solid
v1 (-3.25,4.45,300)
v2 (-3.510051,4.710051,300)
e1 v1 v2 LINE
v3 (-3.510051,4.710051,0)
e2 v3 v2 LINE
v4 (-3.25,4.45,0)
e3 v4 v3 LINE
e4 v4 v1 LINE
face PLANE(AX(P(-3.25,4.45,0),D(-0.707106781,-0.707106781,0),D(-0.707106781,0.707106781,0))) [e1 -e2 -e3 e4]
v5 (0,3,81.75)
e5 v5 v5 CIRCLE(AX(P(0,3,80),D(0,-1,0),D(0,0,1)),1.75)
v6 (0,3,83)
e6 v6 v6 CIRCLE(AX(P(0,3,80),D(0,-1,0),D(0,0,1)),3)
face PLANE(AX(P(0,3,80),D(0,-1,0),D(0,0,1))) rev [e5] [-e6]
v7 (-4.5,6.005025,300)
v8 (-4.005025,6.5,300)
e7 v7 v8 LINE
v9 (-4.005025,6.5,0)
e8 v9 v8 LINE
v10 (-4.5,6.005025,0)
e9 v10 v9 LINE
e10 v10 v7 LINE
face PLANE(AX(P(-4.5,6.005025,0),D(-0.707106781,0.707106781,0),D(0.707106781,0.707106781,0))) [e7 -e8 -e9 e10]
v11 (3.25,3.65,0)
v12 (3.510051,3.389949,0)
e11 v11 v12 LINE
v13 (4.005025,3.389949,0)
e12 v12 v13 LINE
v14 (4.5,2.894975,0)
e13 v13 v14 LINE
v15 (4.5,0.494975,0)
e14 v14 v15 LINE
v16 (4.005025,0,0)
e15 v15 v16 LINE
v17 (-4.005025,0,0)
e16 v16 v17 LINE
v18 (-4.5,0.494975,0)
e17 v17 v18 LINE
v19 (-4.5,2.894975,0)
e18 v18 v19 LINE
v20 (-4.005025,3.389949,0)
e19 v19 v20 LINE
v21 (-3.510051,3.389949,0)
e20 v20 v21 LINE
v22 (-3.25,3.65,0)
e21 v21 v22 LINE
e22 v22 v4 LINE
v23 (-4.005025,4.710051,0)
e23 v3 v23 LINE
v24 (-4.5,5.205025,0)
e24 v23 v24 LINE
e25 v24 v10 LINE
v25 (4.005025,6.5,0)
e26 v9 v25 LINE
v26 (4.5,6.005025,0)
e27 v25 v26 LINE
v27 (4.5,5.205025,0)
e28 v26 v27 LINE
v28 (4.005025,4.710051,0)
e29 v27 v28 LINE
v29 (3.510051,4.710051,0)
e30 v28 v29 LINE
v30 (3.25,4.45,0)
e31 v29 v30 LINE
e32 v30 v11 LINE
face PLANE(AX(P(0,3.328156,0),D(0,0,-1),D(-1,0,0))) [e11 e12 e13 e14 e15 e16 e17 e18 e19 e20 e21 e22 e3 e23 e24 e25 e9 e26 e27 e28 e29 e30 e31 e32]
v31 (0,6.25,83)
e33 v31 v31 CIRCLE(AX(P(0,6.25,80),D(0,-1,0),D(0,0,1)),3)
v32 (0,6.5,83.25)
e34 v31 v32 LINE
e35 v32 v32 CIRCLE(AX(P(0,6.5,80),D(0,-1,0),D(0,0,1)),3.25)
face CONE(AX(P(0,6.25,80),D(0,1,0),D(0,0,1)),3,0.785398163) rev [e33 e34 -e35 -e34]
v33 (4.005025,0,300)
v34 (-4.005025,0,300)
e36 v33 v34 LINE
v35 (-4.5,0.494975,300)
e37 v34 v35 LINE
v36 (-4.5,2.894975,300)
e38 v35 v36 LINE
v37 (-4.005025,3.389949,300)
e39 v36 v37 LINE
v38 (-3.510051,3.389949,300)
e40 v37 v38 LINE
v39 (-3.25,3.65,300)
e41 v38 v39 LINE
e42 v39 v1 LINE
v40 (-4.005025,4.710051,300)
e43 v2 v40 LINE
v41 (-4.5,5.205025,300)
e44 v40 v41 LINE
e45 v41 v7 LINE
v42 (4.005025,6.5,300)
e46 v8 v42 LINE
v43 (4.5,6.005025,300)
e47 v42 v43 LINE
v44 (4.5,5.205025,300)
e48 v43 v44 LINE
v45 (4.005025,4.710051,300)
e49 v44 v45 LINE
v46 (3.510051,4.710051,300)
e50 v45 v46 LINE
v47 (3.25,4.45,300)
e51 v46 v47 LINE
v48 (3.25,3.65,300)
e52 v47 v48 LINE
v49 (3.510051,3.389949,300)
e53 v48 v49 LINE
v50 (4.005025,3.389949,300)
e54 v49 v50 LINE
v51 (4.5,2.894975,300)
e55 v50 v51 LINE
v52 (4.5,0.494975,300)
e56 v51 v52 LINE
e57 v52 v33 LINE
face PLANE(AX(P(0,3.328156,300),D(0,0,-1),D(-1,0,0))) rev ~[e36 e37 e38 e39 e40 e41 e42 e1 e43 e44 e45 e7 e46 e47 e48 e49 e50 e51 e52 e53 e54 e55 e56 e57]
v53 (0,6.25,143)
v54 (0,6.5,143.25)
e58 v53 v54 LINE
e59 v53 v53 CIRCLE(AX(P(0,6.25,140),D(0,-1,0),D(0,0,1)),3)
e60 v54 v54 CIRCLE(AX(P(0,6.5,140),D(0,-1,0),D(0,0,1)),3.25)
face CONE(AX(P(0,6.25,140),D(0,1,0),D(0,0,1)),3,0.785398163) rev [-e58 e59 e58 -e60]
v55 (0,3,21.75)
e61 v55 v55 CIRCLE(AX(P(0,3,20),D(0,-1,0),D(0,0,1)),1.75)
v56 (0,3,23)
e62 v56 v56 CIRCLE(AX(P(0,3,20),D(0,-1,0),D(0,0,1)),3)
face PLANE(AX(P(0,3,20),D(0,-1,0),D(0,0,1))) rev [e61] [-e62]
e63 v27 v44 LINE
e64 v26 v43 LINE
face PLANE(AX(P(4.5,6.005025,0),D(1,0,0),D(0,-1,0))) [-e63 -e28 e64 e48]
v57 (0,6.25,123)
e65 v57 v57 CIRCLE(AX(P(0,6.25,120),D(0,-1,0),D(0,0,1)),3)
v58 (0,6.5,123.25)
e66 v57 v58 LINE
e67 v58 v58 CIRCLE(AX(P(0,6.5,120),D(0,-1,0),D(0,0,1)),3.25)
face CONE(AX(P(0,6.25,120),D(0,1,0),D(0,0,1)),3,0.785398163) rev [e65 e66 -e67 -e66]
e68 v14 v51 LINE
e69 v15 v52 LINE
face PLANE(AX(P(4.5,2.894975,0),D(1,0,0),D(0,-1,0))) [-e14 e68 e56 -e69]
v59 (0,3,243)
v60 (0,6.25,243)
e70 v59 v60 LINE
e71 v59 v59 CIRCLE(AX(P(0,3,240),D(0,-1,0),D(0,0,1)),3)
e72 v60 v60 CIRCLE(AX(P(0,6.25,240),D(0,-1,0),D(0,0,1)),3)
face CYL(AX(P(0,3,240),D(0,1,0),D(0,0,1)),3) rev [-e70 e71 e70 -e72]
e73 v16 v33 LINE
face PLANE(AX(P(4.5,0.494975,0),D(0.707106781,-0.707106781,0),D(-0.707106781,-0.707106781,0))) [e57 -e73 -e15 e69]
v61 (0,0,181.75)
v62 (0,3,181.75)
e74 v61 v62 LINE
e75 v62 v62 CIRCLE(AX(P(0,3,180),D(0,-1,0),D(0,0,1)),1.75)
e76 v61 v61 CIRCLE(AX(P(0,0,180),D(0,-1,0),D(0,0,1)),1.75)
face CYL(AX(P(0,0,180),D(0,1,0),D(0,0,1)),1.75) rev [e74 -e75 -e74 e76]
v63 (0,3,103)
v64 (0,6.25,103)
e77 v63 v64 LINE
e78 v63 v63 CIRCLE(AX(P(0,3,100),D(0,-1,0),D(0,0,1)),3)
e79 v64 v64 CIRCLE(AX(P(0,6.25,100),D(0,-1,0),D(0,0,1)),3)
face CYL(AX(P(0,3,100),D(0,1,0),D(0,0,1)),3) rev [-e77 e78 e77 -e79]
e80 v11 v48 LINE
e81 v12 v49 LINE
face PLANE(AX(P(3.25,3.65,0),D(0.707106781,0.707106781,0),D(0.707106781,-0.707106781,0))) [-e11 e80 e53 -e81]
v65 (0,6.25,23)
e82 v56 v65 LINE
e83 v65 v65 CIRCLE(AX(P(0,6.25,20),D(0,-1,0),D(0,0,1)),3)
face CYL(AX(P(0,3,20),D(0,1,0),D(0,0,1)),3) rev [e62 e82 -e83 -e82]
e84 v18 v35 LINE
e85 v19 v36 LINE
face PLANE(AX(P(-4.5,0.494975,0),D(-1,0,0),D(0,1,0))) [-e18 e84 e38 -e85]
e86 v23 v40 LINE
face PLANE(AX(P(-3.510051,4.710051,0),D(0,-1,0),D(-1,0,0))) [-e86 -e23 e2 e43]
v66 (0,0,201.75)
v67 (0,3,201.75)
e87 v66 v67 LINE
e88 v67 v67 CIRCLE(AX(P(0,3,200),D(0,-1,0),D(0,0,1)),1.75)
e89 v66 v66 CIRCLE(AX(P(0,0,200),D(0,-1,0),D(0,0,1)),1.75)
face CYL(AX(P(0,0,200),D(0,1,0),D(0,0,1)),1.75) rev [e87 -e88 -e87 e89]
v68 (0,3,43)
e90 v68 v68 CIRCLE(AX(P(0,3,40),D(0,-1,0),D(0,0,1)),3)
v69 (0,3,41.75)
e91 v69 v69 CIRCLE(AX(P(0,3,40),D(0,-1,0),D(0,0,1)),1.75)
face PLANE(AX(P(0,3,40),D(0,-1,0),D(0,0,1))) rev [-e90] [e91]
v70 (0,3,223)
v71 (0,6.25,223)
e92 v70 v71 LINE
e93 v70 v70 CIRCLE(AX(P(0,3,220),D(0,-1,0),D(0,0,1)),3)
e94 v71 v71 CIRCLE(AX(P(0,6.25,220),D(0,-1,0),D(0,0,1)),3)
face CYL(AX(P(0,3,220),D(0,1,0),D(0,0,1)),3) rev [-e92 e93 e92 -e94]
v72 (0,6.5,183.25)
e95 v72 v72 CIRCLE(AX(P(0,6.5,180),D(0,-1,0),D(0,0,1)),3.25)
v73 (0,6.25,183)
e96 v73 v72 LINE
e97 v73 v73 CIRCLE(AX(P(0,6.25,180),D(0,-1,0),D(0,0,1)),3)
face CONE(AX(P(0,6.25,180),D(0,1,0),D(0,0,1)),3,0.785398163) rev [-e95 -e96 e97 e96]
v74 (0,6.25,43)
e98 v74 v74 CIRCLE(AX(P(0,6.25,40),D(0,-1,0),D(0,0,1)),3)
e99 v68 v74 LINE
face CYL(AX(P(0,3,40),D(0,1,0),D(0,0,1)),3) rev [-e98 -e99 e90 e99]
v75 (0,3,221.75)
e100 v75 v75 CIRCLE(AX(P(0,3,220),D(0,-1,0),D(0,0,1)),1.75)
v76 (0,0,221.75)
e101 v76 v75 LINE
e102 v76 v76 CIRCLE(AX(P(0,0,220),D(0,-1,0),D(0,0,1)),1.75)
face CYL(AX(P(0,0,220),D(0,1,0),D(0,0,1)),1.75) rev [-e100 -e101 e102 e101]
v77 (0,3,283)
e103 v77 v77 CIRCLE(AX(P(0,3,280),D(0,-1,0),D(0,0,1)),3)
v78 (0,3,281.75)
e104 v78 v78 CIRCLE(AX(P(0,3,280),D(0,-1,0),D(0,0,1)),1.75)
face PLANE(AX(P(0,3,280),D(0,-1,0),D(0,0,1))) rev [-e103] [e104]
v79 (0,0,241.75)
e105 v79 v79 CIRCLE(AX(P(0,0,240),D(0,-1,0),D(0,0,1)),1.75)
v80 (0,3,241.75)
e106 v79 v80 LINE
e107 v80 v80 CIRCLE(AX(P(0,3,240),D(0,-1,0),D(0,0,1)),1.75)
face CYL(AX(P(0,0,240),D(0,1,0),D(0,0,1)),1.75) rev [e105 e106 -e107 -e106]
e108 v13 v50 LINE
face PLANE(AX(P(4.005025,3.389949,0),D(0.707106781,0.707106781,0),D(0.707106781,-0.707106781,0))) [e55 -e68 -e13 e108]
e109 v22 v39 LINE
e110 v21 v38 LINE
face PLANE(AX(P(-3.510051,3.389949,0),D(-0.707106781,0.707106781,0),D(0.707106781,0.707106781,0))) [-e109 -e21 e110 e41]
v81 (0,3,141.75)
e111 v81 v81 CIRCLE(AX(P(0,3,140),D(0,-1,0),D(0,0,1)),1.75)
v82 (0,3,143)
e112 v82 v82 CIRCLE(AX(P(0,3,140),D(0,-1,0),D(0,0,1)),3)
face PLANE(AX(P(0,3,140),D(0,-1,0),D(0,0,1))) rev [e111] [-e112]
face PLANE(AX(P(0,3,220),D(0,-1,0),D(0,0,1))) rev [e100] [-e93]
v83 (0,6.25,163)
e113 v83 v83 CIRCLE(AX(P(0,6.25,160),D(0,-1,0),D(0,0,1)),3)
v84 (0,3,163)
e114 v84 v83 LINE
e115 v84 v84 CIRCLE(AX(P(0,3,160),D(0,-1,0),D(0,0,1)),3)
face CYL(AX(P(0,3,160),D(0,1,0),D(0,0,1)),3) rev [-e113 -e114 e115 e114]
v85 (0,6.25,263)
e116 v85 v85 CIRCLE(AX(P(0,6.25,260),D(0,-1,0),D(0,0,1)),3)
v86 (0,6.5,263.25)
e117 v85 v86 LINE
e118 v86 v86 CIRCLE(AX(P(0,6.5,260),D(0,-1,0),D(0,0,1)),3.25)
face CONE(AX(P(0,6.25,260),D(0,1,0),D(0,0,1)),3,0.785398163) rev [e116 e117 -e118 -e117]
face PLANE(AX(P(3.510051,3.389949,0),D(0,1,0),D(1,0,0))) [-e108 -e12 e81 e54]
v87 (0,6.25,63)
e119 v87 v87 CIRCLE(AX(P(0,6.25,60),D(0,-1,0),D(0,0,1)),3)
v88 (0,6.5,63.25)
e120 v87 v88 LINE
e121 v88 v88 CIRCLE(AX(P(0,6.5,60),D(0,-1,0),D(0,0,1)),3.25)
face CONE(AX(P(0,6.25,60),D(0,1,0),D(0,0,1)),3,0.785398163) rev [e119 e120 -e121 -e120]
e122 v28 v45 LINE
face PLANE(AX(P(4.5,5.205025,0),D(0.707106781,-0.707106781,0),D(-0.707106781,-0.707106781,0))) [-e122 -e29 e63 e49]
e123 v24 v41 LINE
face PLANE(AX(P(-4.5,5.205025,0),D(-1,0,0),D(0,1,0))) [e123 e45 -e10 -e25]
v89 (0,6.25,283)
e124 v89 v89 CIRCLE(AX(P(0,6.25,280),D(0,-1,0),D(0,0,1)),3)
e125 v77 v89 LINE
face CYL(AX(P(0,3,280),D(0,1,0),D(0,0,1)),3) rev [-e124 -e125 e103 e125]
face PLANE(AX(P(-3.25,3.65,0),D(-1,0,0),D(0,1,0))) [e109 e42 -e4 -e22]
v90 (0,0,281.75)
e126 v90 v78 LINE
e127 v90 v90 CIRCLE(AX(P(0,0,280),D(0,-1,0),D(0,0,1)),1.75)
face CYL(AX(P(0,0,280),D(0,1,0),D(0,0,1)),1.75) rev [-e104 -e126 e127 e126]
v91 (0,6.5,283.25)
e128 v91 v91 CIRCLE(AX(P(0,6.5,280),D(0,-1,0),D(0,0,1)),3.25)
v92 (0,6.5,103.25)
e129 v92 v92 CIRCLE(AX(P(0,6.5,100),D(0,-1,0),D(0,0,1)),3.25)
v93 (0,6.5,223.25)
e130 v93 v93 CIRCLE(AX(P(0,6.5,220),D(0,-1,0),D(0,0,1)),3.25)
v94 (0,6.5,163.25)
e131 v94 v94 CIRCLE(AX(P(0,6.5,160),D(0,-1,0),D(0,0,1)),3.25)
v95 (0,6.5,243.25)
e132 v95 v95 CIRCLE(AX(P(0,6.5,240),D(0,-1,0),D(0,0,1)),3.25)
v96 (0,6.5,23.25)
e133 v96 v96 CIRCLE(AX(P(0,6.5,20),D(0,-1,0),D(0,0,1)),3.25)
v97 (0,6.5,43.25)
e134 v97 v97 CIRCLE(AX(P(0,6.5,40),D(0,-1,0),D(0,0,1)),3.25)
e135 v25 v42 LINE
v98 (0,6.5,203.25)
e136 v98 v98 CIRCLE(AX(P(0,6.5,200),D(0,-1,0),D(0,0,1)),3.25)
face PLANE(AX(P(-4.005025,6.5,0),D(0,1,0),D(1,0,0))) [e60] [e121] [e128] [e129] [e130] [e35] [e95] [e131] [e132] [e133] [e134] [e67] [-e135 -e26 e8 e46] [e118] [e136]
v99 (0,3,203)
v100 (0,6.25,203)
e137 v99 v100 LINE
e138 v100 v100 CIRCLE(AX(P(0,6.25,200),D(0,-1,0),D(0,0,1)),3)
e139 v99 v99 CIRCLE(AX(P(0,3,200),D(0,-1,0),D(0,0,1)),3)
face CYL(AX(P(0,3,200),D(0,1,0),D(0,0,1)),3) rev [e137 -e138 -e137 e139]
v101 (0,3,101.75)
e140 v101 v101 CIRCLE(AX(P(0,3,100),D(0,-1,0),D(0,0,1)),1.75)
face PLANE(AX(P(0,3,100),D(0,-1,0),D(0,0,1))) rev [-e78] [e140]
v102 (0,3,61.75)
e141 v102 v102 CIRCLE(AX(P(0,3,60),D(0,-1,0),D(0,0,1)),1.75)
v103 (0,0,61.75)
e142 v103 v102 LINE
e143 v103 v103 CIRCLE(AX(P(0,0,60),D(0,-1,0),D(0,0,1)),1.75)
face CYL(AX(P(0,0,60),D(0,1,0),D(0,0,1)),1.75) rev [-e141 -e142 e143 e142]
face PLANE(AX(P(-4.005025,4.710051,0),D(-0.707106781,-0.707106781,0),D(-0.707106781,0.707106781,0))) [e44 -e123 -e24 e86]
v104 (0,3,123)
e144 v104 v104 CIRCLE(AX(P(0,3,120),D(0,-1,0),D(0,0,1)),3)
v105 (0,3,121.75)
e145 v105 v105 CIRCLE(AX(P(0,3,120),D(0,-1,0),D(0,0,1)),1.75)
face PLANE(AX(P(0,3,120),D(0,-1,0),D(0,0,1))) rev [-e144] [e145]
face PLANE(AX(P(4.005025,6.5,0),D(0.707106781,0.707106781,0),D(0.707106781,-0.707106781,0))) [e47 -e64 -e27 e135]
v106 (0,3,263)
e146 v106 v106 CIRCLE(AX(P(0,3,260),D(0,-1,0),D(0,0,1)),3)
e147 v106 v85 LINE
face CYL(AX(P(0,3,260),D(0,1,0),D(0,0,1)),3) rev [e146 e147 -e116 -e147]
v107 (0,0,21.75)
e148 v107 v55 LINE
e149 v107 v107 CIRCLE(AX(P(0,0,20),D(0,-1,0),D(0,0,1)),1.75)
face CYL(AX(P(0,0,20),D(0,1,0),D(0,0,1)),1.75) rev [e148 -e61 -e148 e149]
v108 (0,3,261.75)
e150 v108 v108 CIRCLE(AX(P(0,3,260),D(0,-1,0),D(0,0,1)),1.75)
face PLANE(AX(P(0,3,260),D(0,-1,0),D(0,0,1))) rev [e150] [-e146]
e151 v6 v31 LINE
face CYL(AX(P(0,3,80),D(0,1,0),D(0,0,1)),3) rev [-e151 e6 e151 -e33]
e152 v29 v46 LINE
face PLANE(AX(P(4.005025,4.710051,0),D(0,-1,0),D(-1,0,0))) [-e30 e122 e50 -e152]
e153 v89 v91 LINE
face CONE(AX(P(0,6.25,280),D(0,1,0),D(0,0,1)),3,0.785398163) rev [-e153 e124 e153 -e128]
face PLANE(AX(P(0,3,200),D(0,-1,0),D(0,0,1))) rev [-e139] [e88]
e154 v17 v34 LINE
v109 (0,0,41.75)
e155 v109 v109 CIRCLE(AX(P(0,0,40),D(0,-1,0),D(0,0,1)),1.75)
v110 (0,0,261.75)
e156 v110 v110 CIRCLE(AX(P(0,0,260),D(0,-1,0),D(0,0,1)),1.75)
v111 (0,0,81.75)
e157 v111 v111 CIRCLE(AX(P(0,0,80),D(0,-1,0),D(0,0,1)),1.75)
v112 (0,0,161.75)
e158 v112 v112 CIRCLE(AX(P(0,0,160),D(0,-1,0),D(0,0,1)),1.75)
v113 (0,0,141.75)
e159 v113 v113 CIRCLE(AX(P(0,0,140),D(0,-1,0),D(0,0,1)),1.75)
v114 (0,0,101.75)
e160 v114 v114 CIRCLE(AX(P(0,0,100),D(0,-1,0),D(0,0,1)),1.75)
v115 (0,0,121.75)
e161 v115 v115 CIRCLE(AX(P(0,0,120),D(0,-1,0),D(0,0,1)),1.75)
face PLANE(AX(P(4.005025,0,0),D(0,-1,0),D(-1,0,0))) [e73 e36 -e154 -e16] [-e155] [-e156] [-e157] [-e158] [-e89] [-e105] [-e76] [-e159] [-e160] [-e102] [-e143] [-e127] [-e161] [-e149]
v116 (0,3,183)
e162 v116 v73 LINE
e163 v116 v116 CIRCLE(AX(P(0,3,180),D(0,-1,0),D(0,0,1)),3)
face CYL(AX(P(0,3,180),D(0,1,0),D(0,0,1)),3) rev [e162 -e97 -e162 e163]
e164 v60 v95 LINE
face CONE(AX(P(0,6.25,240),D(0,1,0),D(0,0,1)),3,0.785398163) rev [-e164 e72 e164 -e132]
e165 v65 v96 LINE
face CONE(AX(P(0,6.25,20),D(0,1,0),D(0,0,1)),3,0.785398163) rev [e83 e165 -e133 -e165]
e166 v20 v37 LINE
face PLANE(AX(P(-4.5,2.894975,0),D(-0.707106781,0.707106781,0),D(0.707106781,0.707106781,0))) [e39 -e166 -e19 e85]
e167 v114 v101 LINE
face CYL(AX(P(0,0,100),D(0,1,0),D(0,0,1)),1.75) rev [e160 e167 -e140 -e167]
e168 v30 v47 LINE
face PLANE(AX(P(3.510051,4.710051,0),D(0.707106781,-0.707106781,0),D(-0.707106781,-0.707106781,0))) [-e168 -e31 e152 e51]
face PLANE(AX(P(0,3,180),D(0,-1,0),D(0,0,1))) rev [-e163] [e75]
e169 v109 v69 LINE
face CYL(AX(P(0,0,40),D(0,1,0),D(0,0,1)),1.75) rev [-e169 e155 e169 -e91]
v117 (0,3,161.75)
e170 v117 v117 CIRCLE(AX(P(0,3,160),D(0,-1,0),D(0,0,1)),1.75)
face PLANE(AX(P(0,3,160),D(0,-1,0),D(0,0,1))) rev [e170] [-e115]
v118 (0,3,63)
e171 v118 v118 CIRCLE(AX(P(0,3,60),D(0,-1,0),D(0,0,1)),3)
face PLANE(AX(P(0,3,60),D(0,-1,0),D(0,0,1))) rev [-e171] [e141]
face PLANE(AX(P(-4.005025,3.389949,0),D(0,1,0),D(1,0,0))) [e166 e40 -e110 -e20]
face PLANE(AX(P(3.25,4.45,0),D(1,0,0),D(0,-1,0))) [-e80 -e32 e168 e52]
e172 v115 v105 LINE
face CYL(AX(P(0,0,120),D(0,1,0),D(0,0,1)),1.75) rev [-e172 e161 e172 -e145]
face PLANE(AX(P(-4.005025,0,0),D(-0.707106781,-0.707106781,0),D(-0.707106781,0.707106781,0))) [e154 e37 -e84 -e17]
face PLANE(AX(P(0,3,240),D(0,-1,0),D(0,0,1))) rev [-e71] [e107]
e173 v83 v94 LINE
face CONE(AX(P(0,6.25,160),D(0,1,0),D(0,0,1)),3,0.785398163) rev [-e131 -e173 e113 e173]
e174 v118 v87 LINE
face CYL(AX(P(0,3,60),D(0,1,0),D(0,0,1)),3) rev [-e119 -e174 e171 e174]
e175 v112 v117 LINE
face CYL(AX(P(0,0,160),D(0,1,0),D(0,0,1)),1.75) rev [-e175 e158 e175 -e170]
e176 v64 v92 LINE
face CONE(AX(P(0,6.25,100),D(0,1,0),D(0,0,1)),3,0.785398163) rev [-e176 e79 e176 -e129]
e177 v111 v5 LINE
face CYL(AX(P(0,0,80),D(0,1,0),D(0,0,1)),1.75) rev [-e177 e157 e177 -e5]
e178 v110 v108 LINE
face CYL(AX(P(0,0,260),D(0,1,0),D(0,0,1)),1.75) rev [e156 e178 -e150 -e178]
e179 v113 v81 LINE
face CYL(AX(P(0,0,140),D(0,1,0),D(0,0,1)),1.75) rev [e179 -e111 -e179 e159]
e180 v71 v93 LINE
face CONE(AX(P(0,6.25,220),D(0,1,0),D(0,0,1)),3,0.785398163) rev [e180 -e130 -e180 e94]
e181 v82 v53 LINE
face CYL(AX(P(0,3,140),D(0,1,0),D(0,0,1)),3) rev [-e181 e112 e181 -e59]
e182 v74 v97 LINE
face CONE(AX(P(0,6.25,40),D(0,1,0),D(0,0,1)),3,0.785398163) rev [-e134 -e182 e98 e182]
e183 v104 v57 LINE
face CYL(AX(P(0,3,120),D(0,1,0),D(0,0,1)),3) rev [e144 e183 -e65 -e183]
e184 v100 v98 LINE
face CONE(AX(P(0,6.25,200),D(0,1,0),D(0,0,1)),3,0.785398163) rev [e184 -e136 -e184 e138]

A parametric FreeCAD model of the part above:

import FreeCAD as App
import Part
import Sketcher
from FreeCAD import Vector
Q = App.Units.Quantity

doc = App.newDocument("Part")
body = doc.addObject("PartDesign::Body", "Body")

sketch1 = body.newObject("Sketcher::SketchObject", "Sketch")
sketch1.AttachmentSupport = (doc.getObject("XY_Plane"), [""])
sketch1.MapMode = "FlatFace"
sketch1.addGeometry([
    Part.LineSegment(Vector(4.01, 6.5, 0), Vector(-4.01, 6.5, 0)),
    Part.LineSegment(Vector(-4.01, 6.5, 0), Vector(-4.5, 6.01, 0)),
    Part.LineSegment(Vector(-4.5, 6.01, 0), Vector(-4.5, 5.21, 0)),
    Part.LineSegment(Vector(-4.5, 5.21, 0), Vector(-4.01, 4.71, 0)),
    Part.LineSegment(Vector(-4.01, 4.71, 0), Vector(-3.51, 4.71, 0)),
    Part.LineSegment(Vector(-3.51, 4.71, 0), Vector(-3.25, 4.45, 0)),
    Part.LineSegment(Vector(-3.25, 4.45, 0), Vector(-3.25, 3.65, 0)),
    Part.LineSegment(Vector(-3.25, 3.65, 0), Vector(-3.51, 3.39, 0)),
    Part.LineSegment(Vector(-3.51, 3.39, 0), Vector(-4.01, 3.39, 0)),
    Part.LineSegment(Vector(-4.01, 3.39, 0), Vector(-4.5, 2.89, 0)),
    Part.LineSegment(Vector(-4.5, 2.89, 0), Vector(-4.5, 0.49, 0)),
    Part.LineSegment(Vector(-4.5, 0.49, 0), Vector(-4.01, 0, 0)),
    Part.LineSegment(Vector(-4.01, 0, 0), Vector(4.01, 0, 0)),
    Part.LineSegment(Vector(4.01, 0, 0), Vector(4.5, 0.49, 0)),
    Part.LineSegment(Vector(4.5, 0.49, 0), Vector(4.5, 2.89, 0)),
    Part.LineSegment(Vector(4.5, 2.89, 0), Vector(4.01, 3.39, 0)),
    Part.LineSegment(Vector(4.01, 3.39, 0), Vector(3.51, 3.39, 0)),
    Part.LineSegment(Vector(3.51, 3.39, 0), Vector(3.25, 3.65, 0)),
    Part.LineSegment(Vector(3.25, 3.65, 0), Vector(3.25, 4.45, 0)),
    Part.LineSegment(Vector(3.25, 4.45, 0), Vector(3.51, 4.71, 0)),
    Part.LineSegment(Vector(3.51, 4.71, 0), Vector(4.01, 4.71, 0)),
    Part.LineSegment(Vector(4.01, 4.71, 0), Vector(4.5, 5.21, 0)),
    Part.LineSegment(Vector(4.5, 5.21, 0), Vector(4.5, 6.01, 0)),
    Part.LineSegment(Vector(4.5, 6.01, 0), Vector(4.01, 6.5, 0)),
], False)
sketch1.addConstraint([
    Sketcher.Constraint("Coincident", 0, 2, 1, 1),
    Sketcher.Constraint("Coincident", 1, 2, 2, 1),
    Sketcher.Constraint("Coincident", 2, 2, 3, 1),
    Sketcher.Constraint("Coincident", 3, 2, 4, 1),
    Sketcher.Constraint("Coincident", 4, 2, 5, 1),
    Sketcher.Constraint("Coincident", 5, 2, 6, 1),
    Sketcher.Constraint("Coincident", 6, 2, 7, 1),
    Sketcher.Constraint("Coincident", 7, 2, 8, 1),
    Sketcher.Constraint("Coincident", 8, 2, 9, 1),
    Sketcher.Constraint("Coincident", 9, 2, 10, 1),
    Sketcher.Constraint("Coincident", 10, 2, 11, 1),
    Sketcher.Constraint("Coincident", 11, 2, 12, 1),
    Sketcher.Constraint("Coincident", 12, 2, 13, 1),
    Sketcher.Constraint("Coincident", 13, 2, 14, 1),
    Sketcher.Constraint("Coincident", 14, 2, 15, 1),
    Sketcher.Constraint("Coincident", 15, 2, 16, 1),
    Sketcher.Constraint("Coincident", 16, 2, 17, 1),
    Sketcher.Constraint("Coincident", 17, 2, 18, 1),
    Sketcher.Constraint("Coincident", 18, 2, 19, 1),
    Sketcher.Constraint("Coincident", 19, 2, 20, 1),
    Sketcher.Constraint("Coincident", 20, 2, 21, 1),
    Sketcher.Constraint("Coincident", 21, 2, 22, 1),
    Sketcher.Constraint("Coincident", 22, 2, 23, 1),
    Sketcher.Constraint("Coincident", 23, 2, 0, 1),
    Sketcher.Constraint("Horizontal", 0),
    Sketcher.Constraint("Vertical", 2),
    Sketcher.Constraint("Horizontal", 4),
    Sketcher.Constraint("Vertical", 6),
    Sketcher.Constraint("Horizontal", 8),
    Sketcher.Constraint("Vertical", 10),
    Sketcher.Constraint("Horizontal", 12),
    Sketcher.Constraint("Vertical", 14),
    Sketcher.Constraint("Horizontal", 16),
    Sketcher.Constraint("Vertical", 18),
    Sketcher.Constraint("Horizontal", 20),
    Sketcher.Constraint("Vertical", 22),
    Sketcher.Constraint("Symmetric", 11, 2, 12, 2, -1, 1),
    Sketcher.Constraint("Symmetric", 10, 2, 13, 2, -2),
    Sketcher.Constraint("Symmetric", 8, 2, 15, 2, -2),
    Sketcher.Constraint("Symmetric", 6, 2, 17, 2, -2),
    Sketcher.Constraint("Symmetric", 4, 2, 19, 2, -2),
    Sketcher.Constraint("Symmetric", 2, 2, 21, 2, -2),
    Sketcher.Constraint("Perpendicular", 1, 3),
    Sketcher.Constraint("Parallel", 3, 5),
    Sketcher.Constraint("Perpendicular", 5, 7),
    Sketcher.Constraint("Parallel", 7, 9),
    Sketcher.Constraint("Perpendicular", 9, 11),
    Sketcher.Constraint("Perpendicular", 11, 13),
    Sketcher.Constraint("Perpendicular", 13, 15),
    Sketcher.Constraint("Parallel", 15, 17),
    Sketcher.Constraint("Perpendicular", 17, 19),
    Sketcher.Constraint("Parallel", 19, 21),
    Sketcher.Constraint("Perpendicular", 21, 23),
    Sketcher.Constraint("Horizontal", 1, 2, 22, 2),
    Sketcher.Constraint("Vertical", 0, 2, 3, 2),
    Sketcher.Constraint("Vertical", 4, 2, 7, 2),
    Sketcher.Constraint("Vertical", 3, 2, 8, 2),
    Sketcher.Constraint("Vertical", 2, 2, 9, 2),
    Sketcher.Constraint("Vertical", 8, 2, 11, 2),
    Sketcher.Constraint("Equal", 2, 6),
    Sketcher.Constraint("DistanceY", 2, 2, 2, 1, Q("0.8 mm")),
    Sketcher.Constraint("DistanceY", 10, 2, 10, 1, Q("2.4 mm")),
    Sketcher.Constraint("Distance", 1, Q("0.7 mm")),
    Sketcher.Constraint("DistanceY", -1, 1, 0, 2, Q("6.5 mm")),
    Sketcher.Constraint("DistanceX", 1, 2, -1, 1, Q("4.5 mm")),
    Sketcher.Constraint("DistanceX", 5, 2, -1, 1, Q("3.25 mm")),
])
pad1 = body.newObject("PartDesign::Pad", "Pad")
pad1.Profile = sketch1
pad1.Length = 300

sketch2 = body.newObject("Sketcher::SketchObject", "Sketch001")
sketch2.AttachmentSupport = (doc.getObject("YZ_Plane"), [""])
sketch2.MapMode = "FlatFace"
sketch2.addGeometry([
    Part.LineSegment(Vector(0, 20, 0), Vector(6.5, 20, 0)),
    Part.LineSegment(Vector(6.5, 20, 0), Vector(6.5, 23.25, 0)),
    Part.LineSegment(Vector(6.5, 23.25, 0), Vector(6.25, 23, 0)),
    Part.LineSegment(Vector(6.25, 23, 0), Vector(3, 23, 0)),
    Part.LineSegment(Vector(3, 23, 0), Vector(3, 21.75, 0)),
    Part.LineSegment(Vector(3, 21.75, 0), Vector(0, 21.75, 0)),
    Part.LineSegment(Vector(0, 21.75, 0), Vector(0, 20, 0)),
], False)
sketch2.addGeometry(Part.LineSegment(Vector(6.5, 20, 0), Vector(0, 20, 0)), True)
sketch2.addConstraint([
    Sketcher.Constraint("Coincident", 0, 2, 1, 1),
    Sketcher.Constraint("Coincident", 1, 2, 2, 1),
    Sketcher.Constraint("Coincident", 2, 2, 3, 1),
    Sketcher.Constraint("Coincident", 3, 2, 4, 1),
    Sketcher.Constraint("Coincident", 4, 2, 5, 1),
    Sketcher.Constraint("Coincident", 5, 2, 6, 1),
    Sketcher.Constraint("Coincident", 6, 2, 0, 1),
    Sketcher.Constraint("Horizontal", 0),
    Sketcher.Constraint("Vertical", 1),
    Sketcher.Constraint("Horizontal", 3),
    Sketcher.Constraint("Vertical", 4),
    Sketcher.Constraint("Horizontal", 5),
    Sketcher.Constraint("Vertical", 6),
    Sketcher.Constraint("Horizontal", 7),
    Sketcher.Constraint("Coincident", 7, 1, 0, 2),
    Sketcher.Constraint("PointOnObject", 5, 2, -2),
    Sketcher.Constraint("PointOnObject", 7, 2, -2),
    Sketcher.Constraint("Equal", 3, 1),
    Sketcher.Constraint("DistanceX", 5, 2, 5, 1, Q("3 mm")),
    Sketcher.Constraint("Angle", 2, Q("-135 deg")),
    Sketcher.Constraint("DistanceX", 0, 1, 0, 2, Q("6.5 mm")),
    Sketcher.Constraint("DistanceY", -1, 1, 0, 2, Q("20 mm")),
    Sketcher.Constraint("DistanceY", -1, 1, 2, 2, Q("23 mm")),
    Sketcher.Constraint("DistanceY", 4, 2, 4, 1, Q("1.25 mm")),
])
groove = body.newObject("PartDesign::Groove", "Groove")
groove.Profile = sketch2
groove.ReferenceAxis = (sketch2, ["Axis0"])
groove.Angle = 360
doc.recompute()

linearpattern = body.newObject("PartDesign::LinearPattern", "LinearPattern")
linearpattern.Originals = [groove]
linearpattern.Direction = (doc.getObject("Z_Axis"), [""])
linearpattern.Mode = "offset"
linearpattern.Offset = 20
linearpattern.Occurrences = 2
body.Tip = linearpattern
doc.recompute()

linearpattern2 = body.newObject("PartDesign::LinearPattern", "LinearPattern001")
linearpattern2.Originals = [groove]
linearpattern2.Direction = (doc.getObject("Z_Axis"), [""])
linearpattern2.Mode = "offset"
linearpattern2.Offset = 20
linearpattern2.Occurrences = 13
body.Tip = linearpattern2

sketch3 = body.newObject("Sketcher::SketchObject", "Sketch002")
sketch3.AttachmentSupport = (doc.getObject("YZ_Plane"), [""])
sketch3.MapMode = "FlatFace"
sketch3.addGeometry([
    Part.LineSegment(Vector(0, 60, 0), Vector(6.5, 60, 0)),
    Part.LineSegment(Vector(6.5, 60, 0), Vector(6.5, 63.25, 0)),
    Part.LineSegment(Vector(6.5, 63.25, 0), Vector(6.25, 63, 0)),
    Part.LineSegment(Vector(6.25, 63, 0), Vector(3, 63, 0)),
    Part.LineSegment(Vector(3, 63, 0), Vector(3, 61.75, 0)),
    Part.LineSegment(Vector(3, 61.75, 0), Vector(0, 61.75, 0)),
    Part.LineSegment(Vector(0, 61.75, 0), Vector(0, 60, 0)),
], False)
sketch3.addGeometry(Part.LineSegment(Vector(6.5, 60, 0), Vector(0, 60, 0)), True)
sketch3.addConstraint([
    Sketcher.Constraint("Coincident", 0, 2, 1, 1),
    Sketcher.Constraint("Coincident", 1, 2, 2, 1),
    Sketcher.Constraint("Coincident", 2, 2, 3, 1),
    Sketcher.Constraint("Coincident", 3, 2, 4, 1),
    Sketcher.Constraint("Coincident", 4, 2, 5, 1),
    Sketcher.Constraint("Coincident", 5, 2, 6, 1),
    Sketcher.Constraint("Coincident", 6, 2, 0, 1),
    Sketcher.Constraint("Horizontal", 0),
    Sketcher.Constraint("Vertical", 1),
    Sketcher.Constraint("Horizontal", 3),
    Sketcher.Constraint("Vertical", 4),
    Sketcher.Constraint("Horizontal", 5),
    Sketcher.Constraint("Vertical", 6),
    Sketcher.Constraint("Horizontal", 7),
    Sketcher.Constraint("Coincident", 7, 1, 0, 2),
    Sketcher.Constraint("PointOnObject", 5, 2, -2),
    Sketcher.Constraint("PointOnObject", 7, 2, -2),
    Sketcher.Constraint("Equal", 3, 1),
    Sketcher.Constraint("DistanceX", 5, 2, 5, 1, Q("3 mm")),
    Sketcher.Constraint("Angle", 2, Q("-135 deg")),
    Sketcher.Constraint("DistanceX", 0, 1, 0, 2, Q("6.5 mm")),
    Sketcher.Constraint("DistanceY", -1, 1, 0, 2, Q("60 mm")),
    Sketcher.Constraint("DistanceY", -1, 1, 2, 2, Q("63 mm")),
    Sketcher.Constraint("DistanceY", 4, 2, 4, 1, Q("1.25 mm")),
])
groove2 = body.newObject("PartDesign::Groove", "Groove001")
groove2.Profile = sketch3
groove2.ReferenceAxis = (sketch3, ["Axis0"])
groove2.Angle = 360

sketch4 = body.newObject("Sketcher::SketchObject", "Sketch003")
sketch4.AttachmentSupport = (doc.getObject("YZ_Plane"), [""])
sketch4.MapMode = "FlatFace"
sketch4.addGeometry([
    Part.LineSegment(Vector(0, 80, 0), Vector(6.5, 80, 0)),
    Part.LineSegment(Vector(6.5, 80, 0), Vector(6.5, 83.25, 0)),
    Part.LineSegment(Vector(6.5, 83.25, 0), Vector(6.25, 83, 0)),
    Part.LineSegment(Vector(6.25, 83, 0), Vector(3, 83, 0)),
    Part.LineSegment(Vector(3, 83, 0), Vector(3, 81.75, 0)),
    Part.LineSegment(Vector(3, 81.75, 0), Vector(0, 81.75, 0)),
    Part.LineSegment(Vector(0, 81.75, 0), Vector(0, 80, 0)),
], False)
sketch4.addGeometry(Part.LineSegment(Vector(6.5, 80, 0), Vector(0, 80, 0)), True)
sketch4.addConstraint([
    Sketcher.Constraint("Coincident", 0, 2, 1, 1),
    Sketcher.Constraint("Coincident", 1, 2, 2, 1),
    Sketcher.Constraint("Coincident", 2, 2, 3, 1),
    Sketcher.Constraint("Coincident", 3, 2, 4, 1),
    Sketcher.Constraint("Coincident", 4, 2, 5, 1),
    Sketcher.Constraint("Coincident", 5, 2, 6, 1),
    Sketcher.Constraint("Coincident", 6, 2, 0, 1),
    Sketcher.Constraint("Horizontal", 0),
    Sketcher.Constraint("Vertical", 1),
    Sketcher.Constraint("Horizontal", 3),
    Sketcher.Constraint("Vertical", 4),
    Sketcher.Constraint("Horizontal", 5),
    Sketcher.Constraint("Vertical", 6),
    Sketcher.Constraint("Horizontal", 7),
    Sketcher.Constraint("Coincident", 7, 1, 0, 2),
    Sketcher.Constraint("PointOnObject", 5, 2, -2),
    Sketcher.Constraint("PointOnObject", 7, 2, -2),
    Sketcher.Constraint("Equal", 3, 1),
    Sketcher.Constraint("DistanceX", 5, 2, 5, 1, Q("3 mm")),
    Sketcher.Constraint("Angle", 2, Q("-135 deg")),
    Sketcher.Constraint("DistanceX", 0, 1, 0, 2, Q("6.5 mm")),
    Sketcher.Constraint("DistanceY", -1, 1, 0, 2, Q("80 mm")),
    Sketcher.Constraint("DistanceY", -1, 1, 2, 2, Q("83 mm")),
    Sketcher.Constraint("DistanceY", 4, 2, 4, 1, Q("1.25 mm")),
])
groove3 = body.newObject("PartDesign::Groove", "Groove002")
groove3.Profile = sketch4
groove3.ReferenceAxis = (sketch4, ["Axis0"])
groove3.Angle = 360

sketch5 = body.newObject("Sketcher::SketchObject", "Sketch004")
sketch5.AttachmentSupport = (doc.getObject("YZ_Plane"), [""])
sketch5.MapMode = "FlatFace"
sketch5.addGeometry([
    Part.LineSegment(Vector(0, 100, 0), Vector(6.5, 100, 0)),
    Part.LineSegment(Vector(6.5, 100, 0), Vector(6.5, 103.25, 0)),
    Part.LineSegment(Vector(6.5, 103.25, 0), Vector(6.25, 103, 0)),
    Part.LineSegment(Vector(6.25, 103, 0), Vector(3, 103, 0)),
    Part.LineSegment(Vector(3, 103, 0), Vector(3, 101.75, 0)),
    Part.LineSegment(Vector(3, 101.75, 0), Vector(0, 101.75, 0)),
    Part.LineSegment(Vector(0, 101.75, 0), Vector(0, 100, 0)),
], False)
sketch5.addGeometry(Part.LineSegment(Vector(6.5, 100, 0), Vector(0, 100, 0)), True)
sketch5.addConstraint([
    Sketcher.Constraint("Coincident", 0, 2, 1, 1),
    Sketcher.Constraint("Coincident", 1, 2, 2, 1),
    Sketcher.Constraint("Coincident", 2, 2, 3, 1),
    Sketcher.Constraint("Coincident", 3, 2, 4, 1),
    Sketcher.Constraint("Coincident", 4, 2, 5, 1),
    Sketcher.Constraint("Coincident", 5, 2, 6, 1),
    Sketcher.Constraint("Coincident", 6, 2, 0, 1),
    Sketcher.Constraint("Horizontal", 0),
    Sketcher.Constraint("Vertical", 1),
    Sketcher.Constraint("Horizontal", 3),
    Sketcher.Constraint("Vertical", 4),
    Sketcher.Constraint("Horizontal", 5),
    Sketcher.Constraint("Vertical", 6),
    Sketcher.Constraint("Horizontal", 7),
    Sketcher.Constraint("Coincident", 7, 1, 0, 2),
    Sketcher.Constraint("PointOnObject", 5, 2, -2),
    Sketcher.Constraint("PointOnObject", 7, 2, -2),
    Sketcher.Constraint("Equal", 3, 1),
    Sketcher.Constraint("DistanceX", 5, 2, 5, 1, Q("3 mm")),
    Sketcher.Constraint("Angle", 2, Q("-135 deg")),
    Sketcher.Constraint("DistanceX", 0, 1, 0, 2, Q("6.5 mm")),
    Sketcher.Constraint("DistanceY", -1, 1, 0, 2, Q("100 mm")),
    Sketcher.Constraint("DistanceY", -1, 1, 2, 2, Q("103 mm")),
    Sketcher.Constraint("DistanceY", 4, 2, 4, 1, Q("1.25 mm")),
])
groove4 = body.newObject("PartDesign::Groove", "Groove003")
groove4.Profile = sketch5
groove4.ReferenceAxis = (sketch5, ["Axis0"])
groove4.Angle = 360

sketch6 = body.newObject("Sketcher::SketchObject", "Sketch005")
sketch6.AttachmentSupport = (doc.getObject("YZ_Plane"), [""])
sketch6.MapMode = "FlatFace"
sketch6.addGeometry([
    Part.LineSegment(Vector(0, 120, 0), Vector(6.5, 120, 0)),
    Part.LineSegment(Vector(6.5, 120, 0), Vector(6.5, 123.25, 0)),
    Part.LineSegment(Vector(6.5, 123.25, 0), Vector(6.25, 123, 0)),
    Part.LineSegment(Vector(6.25, 123, 0), Vector(3, 123, 0)),
    Part.LineSegment(Vector(3, 123, 0), Vector(3, 121.75, 0)),
    Part.LineSegment(Vector(3, 121.75, 0), Vector(0, 121.75, 0)),
    Part.LineSegment(Vector(0, 121.75, 0), Vector(0, 120, 0)),
], False)
sketch6.addGeometry(Part.LineSegment(Vector(6.5, 120, 0), Vector(0, 120, 0)), True)
sketch6.addConstraint([
    Sketcher.Constraint("Coincident", 0, 2, 1, 1),
    Sketcher.Constraint("Coincident", 1, 2, 2, 1),
    Sketcher.Constraint("Coincident", 2, 2, 3, 1),
    Sketcher.Constraint("Coincident", 3, 2, 4, 1),
    Sketcher.Constraint("Coincident", 4, 2, 5, 1),
    Sketcher.Constraint("Coincident", 5, 2, 6, 1),
    Sketcher.Constraint("Coincident", 6, 2, 0, 1),
    Sketcher.Constraint("Horizontal", 0),
    Sketcher.Constraint("Vertical", 1),
    Sketcher.Constraint("Horizontal", 3),
    Sketcher.Constraint("Vertical", 4),
    Sketcher.Constraint("Horizontal", 5),
    Sketcher.Constraint("Vertical", 6),
    Sketcher.Constraint("Horizontal", 7),
    Sketcher.Constraint("Coincident", 7, 1, 0, 2),
    Sketcher.Constraint("PointOnObject", 5, 2, -2),
    Sketcher.Constraint("PointOnObject", 7, 2, -2),
    Sketcher.Constraint("Equal", 3, 1),
    Sketcher.Constraint("DistanceX", 5, 2, 5, 1, Q("3 mm")),
    Sketcher.Constraint("Angle", 2, Q("-135 deg")),
    Sketcher.Constraint("DistanceX", 0, 1, 0, 2, Q("6.5 mm")),
    Sketcher.Constraint("DistanceY", -1, 1, 0, 2, Q("120 mm")),
    Sketcher.Constraint("DistanceY", -1, 1, 2, 2, Q("123 mm")),
    Sketcher.Constraint("DistanceY", 4, 2, 4, 1, Q("1.25 mm")),
])
groove5 = body.newObject("PartDesign::Groove", "Groove004")
groove5.Profile = sketch6
groove5.ReferenceAxis = (sketch6, ["Axis0"])
groove5.Angle = 360

sketch7 = body.newObject("Sketcher::SketchObject", "Sketch006")
sketch7.AttachmentSupport = (doc.getObject("YZ_Plane"), [""])
sketch7.MapMode = "FlatFace"
sketch7.addGeometry([
    Part.LineSegment(Vector(0, 140, 0), Vector(6.5, 140, 0)),
    Part.LineSegment(Vector(6.5, 140, 0), Vector(6.5, 143.25, 0)),
    Part.LineSegment(Vector(6.5, 143.25, 0), Vector(6.25, 143, 0)),
    Part.LineSegment(Vector(6.25, 143, 0), Vector(3, 143, 0)),
    Part.LineSegment(Vector(3, 143, 0), Vector(3, 141.75, 0)),
    Part.LineSegment(Vector(3, 141.75, 0), Vector(0, 141.75, 0)),
    Part.LineSegment(Vector(0, 141.75, 0), Vector(0, 140, 0)),
], False)
sketch7.addGeometry(Part.LineSegment(Vector(6.5, 140, 0), Vector(0, 140, 0)), True)
sketch7.addConstraint([
    Sketcher.Constraint("Coincident", 0, 2, 1, 1),
    Sketcher.Constraint("Coincident", 1, 2, 2, 1),
    Sketcher.Constraint("Coincident", 2, 2, 3, 1),
    Sketcher.Constraint("Coincident", 3, 2, 4, 1),
    Sketcher.Constraint("Coincident", 4, 2, 5, 1),
    Sketcher.Constraint("Coincident", 5, 2, 6, 1),
    Sketcher.Constraint("Coincident", 6, 2, 0, 1),
    Sketcher.Constraint("Horizontal", 0),
    Sketcher.Constraint("Vertical", 1),
    Sketcher.Constraint("Horizontal", 3),
    Sketcher.Constraint("Vertical", 4),
    Sketcher.Constraint("Horizontal", 5),
    Sketcher.Constraint("Vertical", 6),
    Sketcher.Constraint("Horizontal", 7),
    Sketcher.Constraint("Coincident", 7, 1, 0, 2),
    Sketcher.Constraint("PointOnObject", 5, 2, -2),
    Sketcher.Constraint("PointOnObject", 7, 2, -2),
    Sketcher.Constraint("Equal", 3, 1),
    Sketcher.Constraint("DistanceX", 5, 2, 5, 1, Q("3 mm")),
    Sketcher.Constraint("Angle", 2, Q("-135 deg")),
    Sketcher.Constraint("DistanceX", 0, 1, 0, 2, Q("6.5 mm")),
    Sketcher.Constraint("DistanceY", -1, 1, 0, 2, Q("140 mm")),
    Sketcher.Constraint("DistanceY", -1, 1, 2, 2, Q("143 mm")),
    Sketcher.Constraint("DistanceY", 4, 2, 4, 1, Q("1.25 mm")),
])
groove6 = body.newObject("PartDesign::Groove", "Groove005")
groove6.Profile = sketch7
groove6.ReferenceAxis = (sketch7, ["Axis0"])
groove6.Angle = 360

sketch8 = body.newObject("Sketcher::SketchObject", "Sketch007")
sketch8.AttachmentSupport = (doc.getObject("YZ_Plane"), [""])
sketch8.MapMode = "FlatFace"
sketch8.addGeometry([
    Part.LineSegment(Vector(0, 160, 0), Vector(6.5, 160, 0)),
    Part.LineSegment(Vector(6.5, 160, 0), Vector(6.5, 163.25, 0)),
    Part.LineSegment(Vector(6.5, 163.25, 0), Vector(6.25, 163, 0)),
    Part.LineSegment(Vector(6.25, 163, 0), Vector(3, 163, 0)),
    Part.LineSegment(Vector(3, 163, 0), Vector(3, 161.75, 0)),
    Part.LineSegment(Vector(3, 161.75, 0), Vector(0, 161.75, 0)),
    Part.LineSegment(Vector(0, 161.75, 0), Vector(0, 160, 0)),
], False)
sketch8.addGeometry(Part.LineSegment(Vector(6.5, 160, 0), Vector(0, 160, 0)), True)
sketch8.addConstraint([
    Sketcher.Constraint("Coincident", 0, 2, 1, 1),
    Sketcher.Constraint("Coincident", 1, 2, 2, 1),
    Sketcher.Constraint("Coincident", 2, 2, 3, 1),
    Sketcher.Constraint("Coincident", 3, 2, 4, 1),
    Sketcher.Constraint("Coincident", 4, 2, 5, 1),
    Sketcher.Constraint("Coincident", 5, 2, 6, 1),
    Sketcher.Constraint("Coincident", 6, 2, 0, 1),
    Sketcher.Constraint("Horizontal", 0),
    Sketcher.Constraint("Vertical", 1),
    Sketcher.Constraint("Horizontal", 3),
    Sketcher.Constraint("Vertical", 4),
    Sketcher.Constraint("Horizontal", 5),
    Sketcher.Constraint("Vertical", 6),
    Sketcher.Constraint("Horizontal", 7),
    Sketcher.Constraint("Coincident", 7, 1, 0, 2),
    Sketcher.Constraint("PointOnObject", 5, 2, -2),
    Sketcher.Constraint("PointOnObject", 7, 2, -2),
    Sketcher.Constraint("Equal", 3, 1),
    Sketcher.Constraint("DistanceX", 5, 2, 5, 1, Q("3 mm")),
    Sketcher.Constraint("Angle", 2, Q("-135 deg")),
    Sketcher.Constraint("DistanceX", 0, 1, 0, 2, Q("6.5 mm")),
    Sketcher.Constraint("DistanceY", -1, 1, 0, 2, Q("160 mm")),
    Sketcher.Constraint("DistanceY", -1, 1, 2, 2, Q("163 mm")),
    Sketcher.Constraint("DistanceY", 4, 2, 4, 1, Q("1.25 mm")),
])
groove7 = body.newObject("PartDesign::Groove", "Groove006")
groove7.Profile = sketch8
groove7.ReferenceAxis = (sketch8, ["Axis0"])
groove7.Angle = 360

sketch9 = body.newObject("Sketcher::SketchObject", "Sketch008")
sketch9.AttachmentSupport = (doc.getObject("YZ_Plane"), [""])
sketch9.MapMode = "FlatFace"
sketch9.addGeometry([
    Part.LineSegment(Vector(0, 180, 0), Vector(6.5, 180, 0)),
    Part.LineSegment(Vector(6.5, 180, 0), Vector(6.5, 183.25, 0)),
    Part.LineSegment(Vector(6.5, 183.25, 0), Vector(6.25, 183, 0)),
    Part.LineSegment(Vector(6.25, 183, 0), Vector(3, 183, 0)),
    Part.LineSegment(Vector(3, 183, 0), Vector(3, 181.75, 0)),
    Part.LineSegment(Vector(3, 181.75, 0), Vector(0, 181.75, 0)),
    Part.LineSegment(Vector(0, 181.75, 0), Vector(0, 180, 0)),
], False)
sketch9.addGeometry(Part.LineSegment(Vector(6.5, 180, 0), Vector(0, 180, 0)), True)
sketch9.addConstraint([
    Sketcher.Constraint("Coincident", 0, 2, 1, 1),
    Sketcher.Constraint("Coincident", 1, 2, 2, 1),
    Sketcher.Constraint("Coincident", 2, 2, 3, 1),
    Sketcher.Constraint("Coincident", 3, 2, 4, 1),
    Sketcher.Constraint("Coincident", 4, 2, 5, 1),
    Sketcher.Constraint("Coincident", 5, 2, 6, 1),
    Sketcher.Constraint("Coincident", 6, 2, 0, 1),
    Sketcher.Constraint("Horizontal", 0),
    Sketcher.Constraint("Vertical", 1),
    Sketcher.Constraint("Horizontal", 3),
    Sketcher.Constraint("Vertical", 4),
    Sketcher.Constraint("Horizontal", 5),
    Sketcher.Constraint("Vertical", 6),
    Sketcher.Constraint("Horizontal", 7),
    Sketcher.Constraint("Coincident", 7, 1, 0, 2),
    Sketcher.Constraint("PointOnObject", 5, 2, -2),
    Sketcher.Constraint("PointOnObject", 7, 2, -2),
    Sketcher.Constraint("Equal", 3, 1),
    Sketcher.Constraint("DistanceX", 5, 2, 5, 1, Q("3 mm")),
    Sketcher.Constraint("Angle", 2, Q("-135 deg")),
    Sketcher.Constraint("DistanceX", 0, 1, 0, 2, Q("6.5 mm")),
    Sketcher.Constraint("DistanceY", -1, 1, 0, 2, Q("180 mm")),
    Sketcher.Constraint("DistanceY", -1, 1, 2, 2, Q("183 mm")),
    Sketcher.Constraint("DistanceY", 4, 2, 4, 1, Q("1.25 mm")),
])
groove8 = body.newObject("PartDesign::Groove", "Groove007")
groove8.Profile = sketch9
groove8.ReferenceAxis = (sketch9, ["Axis0"])
groove8.Angle = 360

sketch10 = body.newObject("Sketcher::SketchObject", "Sketch009")
sketch10.AttachmentSupport = (doc.getObject("YZ_Plane"), [""])
sketch10.MapMode = "FlatFace"
sketch10.addGeometry([
    Part.LineSegment(Vector(0, 200, 0), Vector(6.5, 200, 0)),
    Part.LineSegment(Vector(6.5, 200, 0), Vector(6.5, 203.25, 0)),
    Part.LineSegment(Vector(6.5, 203.25, 0), Vector(6.25, 203, 0)),
    Part.LineSegment(Vector(6.25, 203, 0), Vector(3, 203, 0)),
    Part.LineSegment(Vector(3, 203, 0), Vector(3, 201.75, 0)),
    Part.LineSegment(Vector(3, 201.75, 0), Vector(0, 201.75, 0)),
    Part.LineSegment(Vector(0, 201.75, 0), Vector(0, 200, 0)),
], False)
sketch10.addGeometry(Part.LineSegment(Vector(6.5, 200, 0), Vector(0, 200, 0)), True)
sketch10.addConstraint([
    Sketcher.Constraint("Coincident", 0, 2, 1, 1),
    Sketcher.Constraint("Coincident", 1, 2, 2, 1),
    Sketcher.Constraint("Coincident", 2, 2, 3, 1),
    Sketcher.Constraint("Coincident", 3, 2, 4, 1),
    Sketcher.Constraint("Coincident", 4, 2, 5, 1),
    Sketcher.Constraint("Coincident", 5, 2, 6, 1),
    Sketcher.Constraint("Coincident", 6, 2, 0, 1),
    Sketcher.Constraint("Horizontal", 0),
    Sketcher.Constraint("Vertical", 1),
    Sketcher.Constraint("Horizontal", 3),
    Sketcher.Constraint("Vertical", 4),
    Sketcher.Constraint("Horizontal", 5),
    Sketcher.Constraint("Vertical", 6),
    Sketcher.Constraint("Horizontal", 7),
    Sketcher.Constraint("Coincident", 7, 1, 0, 2),
    Sketcher.Constraint("PointOnObject", 5, 2, -2),
    Sketcher.Constraint("PointOnObject", 7, 2, -2),
    Sketcher.Constraint("Equal", 3, 1),
    Sketcher.Constraint("DistanceX", 5, 2, 5, 1, Q("3 mm")),
    Sketcher.Constraint("Angle", 2, Q("-135 deg")),
    Sketcher.Constraint("DistanceX", 0, 1, 0, 2, Q("6.5 mm")),
    Sketcher.Constraint("DistanceY", -1, 1, 0, 2, Q("200 mm")),
    Sketcher.Constraint("DistanceY", -1, 1, 2, 2, Q("203 mm")),
    Sketcher.Constraint("DistanceY", 4, 2, 4, 1, Q("1.25 mm")),
])
groove9 = body.newObject("PartDesign::Groove", "Groove008")
groove9.Profile = sketch10
groove9.ReferenceAxis = (sketch10, ["Axis0"])
groove9.Angle = 360

sketch11 = body.newObject("Sketcher::SketchObject", "Sketch010")
sketch11.AttachmentSupport = (doc.getObject("YZ_Plane"), [""])
sketch11.MapMode = "FlatFace"
sketch11.addGeometry([
    Part.LineSegment(Vector(0, 220, 0), Vector(6.5, 220, 0)),
    Part.LineSegment(Vector(6.5, 220, 0), Vector(6.5, 223.25, 0)),
    Part.LineSegment(Vector(6.5, 223.25, 0), Vector(6.25, 223, 0)),
    Part.LineSegment(Vector(6.25, 223, 0), Vector(3, 223, 0)),
    Part.LineSegment(Vector(3, 223, 0), Vector(3, 221.75, 0)),
    Part.LineSegment(Vector(3, 221.75, 0), Vector(0, 221.75, 0)),
    Part.LineSegment(Vector(0, 221.75, 0), Vector(0, 220, 0)),
], False)
sketch11.addGeometry(Part.LineSegment(Vector(6.5, 220, 0), Vector(0, 220, 0)), True)
sketch11.addConstraint([
    Sketcher.Constraint("Coincident", 0, 2, 1, 1),
    Sketcher.Constraint("Coincident", 1, 2, 2, 1),
    Sketcher.Constraint("Coincident", 2, 2, 3, 1),
    Sketcher.Constraint("Coincident", 3, 2, 4, 1),
    Sketcher.Constraint("Coincident", 4, 2, 5, 1),
    Sketcher.Constraint("Coincident", 5, 2, 6, 1),
    Sketcher.Constraint("Coincident", 6, 2, 0, 1),
    Sketcher.Constraint("Horizontal", 0),
    Sketcher.Constraint("Vertical", 1),
    Sketcher.Constraint("Horizontal", 3),
    Sketcher.Constraint("Vertical", 4),
    Sketcher.Constraint("Horizontal", 5),
    Sketcher.Constraint("Vertical", 6),
    Sketcher.Constraint("Horizontal", 7),
    Sketcher.Constraint("Coincident", 7, 1, 0, 2),
    Sketcher.Constraint("PointOnObject", 5, 2, -2),
    Sketcher.Constraint("PointOnObject", 7, 2, -2),
    Sketcher.Constraint("Equal", 3, 1),
    Sketcher.Constraint("DistanceX", 5, 2, 5, 1, Q("3 mm")),
    Sketcher.Constraint("Angle", 2, Q("-135 deg")),
    Sketcher.Constraint("DistanceX", 0, 1, 0, 2, Q("6.5 mm")),
    Sketcher.Constraint("DistanceY", -1, 1, 0, 2, Q("220 mm")),
    Sketcher.Constraint("DistanceY", -1, 1, 2, 2, Q("223 mm")),
    Sketcher.Constraint("DistanceY", 4, 2, 4, 1, Q("1.25 mm")),
])
groove10 = body.newObject("PartDesign::Groove", "Groove009")
groove10.Profile = sketch11
groove10.ReferenceAxis = (sketch11, ["Axis0"])
groove10.Angle = 360

sketch12 = body.newObject("Sketcher::SketchObject", "Sketch011")
sketch12.AttachmentSupport = (doc.getObject("YZ_Plane"), [""])
sketch12.MapMode = "FlatFace"
sketch12.addGeometry([
    Part.LineSegment(Vector(0, 240, 0), Vector(6.5, 240, 0)),
    Part.LineSegment(Vector(6.5, 240, 0), Vector(6.5, 243.25, 0)),
    Part.LineSegment(Vector(6.5, 243.25, 0), Vector(6.25, 243, 0)),
    Part.LineSegment(Vector(6.25, 243, 0), Vector(3, 243, 0)),
    Part.LineSegment(Vector(3, 243, 0), Vector(3, 241.75, 0)),
    Part.LineSegment(Vector(3, 241.75, 0), Vector(0, 241.75, 0)),
    Part.LineSegment(Vector(0, 241.75, 0), Vector(0, 240, 0)),
], False)
sketch12.addGeometry(Part.LineSegment(Vector(6.5, 240, 0), Vector(0, 240, 0)), True)
sketch12.addConstraint([
    Sketcher.Constraint("Coincident", 0, 2, 1, 1),
    Sketcher.Constraint("Coincident", 1, 2, 2, 1),
    Sketcher.Constraint("Coincident", 2, 2, 3, 1),
    Sketcher.Constraint("Coincident", 3, 2, 4, 1),
    Sketcher.Constraint("Coincident", 4, 2, 5, 1),
    Sketcher.Constraint("Coincident", 5, 2, 6, 1),
    Sketcher.Constraint("Coincident", 6, 2, 0, 1),
    Sketcher.Constraint("Horizontal", 0),
    Sketcher.Constraint("Vertical", 1),
    Sketcher.Constraint("Horizontal", 3),
    Sketcher.Constraint("Vertical", 4),
    Sketcher.Constraint("Horizontal", 5),
    Sketcher.Constraint("Vertical", 6),
    Sketcher.Constraint("Horizontal", 7),
    Sketcher.Constraint("Coincident", 7, 1, 0, 2),
    Sketcher.Constraint("PointOnObject", 5, 2, -2),
    Sketcher.Constraint("PointOnObject", 7, 2, -2),
    Sketcher.Constraint("Equal", 3, 1),
    Sketcher.Constraint("DistanceX", 5, 2, 5, 1, Q("3 mm")),
    Sketcher.Constraint("Angle", 2, Q("-135 deg")),
    Sketcher.Constraint("DistanceX", 0, 1, 0, 2, Q("6.5 mm")),
    Sketcher.Constraint("DistanceY", -1, 1, 0, 2, Q("240 mm")),
    Sketcher.Constraint("DistanceY", -1, 1, 2, 2, Q("243 mm")),
    Sketcher.Constraint("DistanceY", 4, 2, 4, 1, Q("1.25 mm")),
])
groove11 = body.newObject("PartDesign::Groove", "Groove010")
groove11.Profile = sketch12
groove11.ReferenceAxis = (sketch12, ["Axis0"])
groove11.Angle = 360

sketch13 = body.newObject("Sketcher::SketchObject", "Sketch012")
sketch13.AttachmentSupport = (doc.getObject("YZ_Plane"), [""])
sketch13.MapMode = "FlatFace"
sketch13.addGeometry([
    Part.LineSegment(Vector(0, 260, 0), Vector(6.5, 260, 0)),
    Part.LineSegment(Vector(6.5, 260, 0), Vector(6.5, 263.25, 0)),
    Part.LineSegment(Vector(6.5, 263.25, 0), Vector(6.25, 263, 0)),
    Part.LineSegment(Vector(6.25, 263, 0), Vector(3, 263, 0)),
    Part.LineSegment(Vector(3, 263, 0), Vector(3, 261.75, 0)),
    Part.LineSegment(Vector(3, 261.75, 0), Vector(0, 261.75, 0)),
    Part.LineSegment(Vector(0, 261.75, 0), Vector(0, 260, 0)),
], False)
sketch13.addGeometry(Part.LineSegment(Vector(6.5, 260, 0), Vector(0, 260, 0)), True)
sketch13.addConstraint([
    Sketcher.Constraint("Coincident", 0, 2, 1, 1),
    Sketcher.Constraint("Coincident", 1, 2, 2, 1),
    Sketcher.Constraint("Coincident", 2, 2, 3, 1),
    Sketcher.Constraint("Coincident", 3, 2, 4, 1),
    Sketcher.Constraint("Coincident", 4, 2, 5, 1),
    Sketcher.Constraint("Coincident", 5, 2, 6, 1),
    Sketcher.Constraint("Coincident", 6, 2, 0, 1),
    Sketcher.Constraint("Horizontal", 0),
    Sketcher.Constraint("Vertical", 1),
    Sketcher.Constraint("Horizontal", 3),
    Sketcher.Constraint("Vertical", 4),
    Sketcher.Constraint("Horizontal", 5),
    Sketcher.Constraint("Vertical", 6),
    Sketcher.Constraint("Horizontal", 7),
    Sketcher.Constraint("Coincident", 7, 1, 0, 2),
    Sketcher.Constraint("PointOnObject", 5, 2, -2),
    Sketcher.Constraint("PointOnObject", 7, 2, -2),
    Sketcher.Constraint("Equal", 3, 1),
    Sketcher.Constraint("DistanceX", 5, 2, 5, 1, Q("3 mm")),
    Sketcher.Constraint("Angle", 2, Q("-135 deg")),
    Sketcher.Constraint("DistanceX", 0, 1, 0, 2, Q("6.5 mm")),
    Sketcher.Constraint("DistanceY", -1, 1, 0, 2, Q("260 mm")),
    Sketcher.Constraint("DistanceY", -1, 1, 2, 2, Q("263 mm")),
    Sketcher.Constraint("DistanceY", 4, 2, 4, 1, Q("1.25 mm")),
])
groove12 = body.newObject("PartDesign::Groove", "Groove011")
groove12.Profile = sketch13
groove12.ReferenceAxis = (sketch13, ["Axis0"])
groove12.Angle = 360

sketch14 = body.newObject("Sketcher::SketchObject", "Sketch013")
sketch14.AttachmentSupport = (doc.getObject("YZ_Plane"), [""])
sketch14.MapMode = "FlatFace"
sketch14.addGeometry([
    Part.LineSegment(Vector(0, 280, 0), Vector(6.5, 280, 0)),
    Part.LineSegment(Vector(6.5, 280, 0), Vector(6.5, 283.25, 0)),
    Part.LineSegment(Vector(6.5, 283.25, 0), Vector(6.25, 283, 0)),
    Part.LineSegment(Vector(6.25, 283, 0), Vector(3, 283, 0)),
    Part.LineSegment(Vector(3, 283, 0), Vector(3, 281.75, 0)),
    Part.LineSegment(Vector(3, 281.75, 0), Vector(0, 281.75, 0)),
    Part.LineSegment(Vector(0, 281.75, 0), Vector(0, 280, 0)),
], False)
sketch14.addGeometry(Part.LineSegment(Vector(6.5, 280, 0), Vector(0, 280, 0)), True)
sketch14.addConstraint([
    Sketcher.Constraint("Coincident", 0, 2, 1, 1),
    Sketcher.Constraint("Coincident", 1, 2, 2, 1),
    Sketcher.Constraint("Coincident", 2, 2, 3, 1),
    Sketcher.Constraint("Coincident", 3, 2, 4, 1),
    Sketcher.Constraint("Coincident", 4, 2, 5, 1),
    Sketcher.Constraint("Coincident", 5, 2, 6, 1),
    Sketcher.Constraint("Coincident", 6, 2, 0, 1),
    Sketcher.Constraint("Horizontal", 0),
    Sketcher.Constraint("Vertical", 1),
    Sketcher.Constraint("Horizontal", 3),
    Sketcher.Constraint("Vertical", 4),
    Sketcher.Constraint("Horizontal", 5),
    Sketcher.Constraint("Vertical", 6),
    Sketcher.Constraint("Horizontal", 7),
    Sketcher.Constraint("Coincident", 7, 1, 0, 2),
    Sketcher.Constraint("PointOnObject", 5, 2, -2),
    Sketcher.Constraint("PointOnObject", 7, 2, -2),
    Sketcher.Constraint("Equal", 3, 1),
    Sketcher.Constraint("DistanceX", 5, 2, 5, 1, Q("3 mm")),
    Sketcher.Constraint("Angle", 2, Q("-135 deg")),
    Sketcher.Constraint("DistanceX", 0, 1, 0, 2, Q("6.5 mm")),
    Sketcher.Constraint("DistanceY", -1, 1, 0, 2, Q("280 mm")),
    Sketcher.Constraint("DistanceY", -1, 1, 2, 2, Q("283 mm")),
    Sketcher.Constraint("DistanceY", 4, 2, 4, 1, Q("1.25 mm")),
])
groove13 = body.newObject("PartDesign::Groove", "Groove012")
groove13.Profile = sketch14
groove13.ReferenceAxis = (sketch14, ["Axis0"])
groove13.Angle = 360

doc.recompute()
